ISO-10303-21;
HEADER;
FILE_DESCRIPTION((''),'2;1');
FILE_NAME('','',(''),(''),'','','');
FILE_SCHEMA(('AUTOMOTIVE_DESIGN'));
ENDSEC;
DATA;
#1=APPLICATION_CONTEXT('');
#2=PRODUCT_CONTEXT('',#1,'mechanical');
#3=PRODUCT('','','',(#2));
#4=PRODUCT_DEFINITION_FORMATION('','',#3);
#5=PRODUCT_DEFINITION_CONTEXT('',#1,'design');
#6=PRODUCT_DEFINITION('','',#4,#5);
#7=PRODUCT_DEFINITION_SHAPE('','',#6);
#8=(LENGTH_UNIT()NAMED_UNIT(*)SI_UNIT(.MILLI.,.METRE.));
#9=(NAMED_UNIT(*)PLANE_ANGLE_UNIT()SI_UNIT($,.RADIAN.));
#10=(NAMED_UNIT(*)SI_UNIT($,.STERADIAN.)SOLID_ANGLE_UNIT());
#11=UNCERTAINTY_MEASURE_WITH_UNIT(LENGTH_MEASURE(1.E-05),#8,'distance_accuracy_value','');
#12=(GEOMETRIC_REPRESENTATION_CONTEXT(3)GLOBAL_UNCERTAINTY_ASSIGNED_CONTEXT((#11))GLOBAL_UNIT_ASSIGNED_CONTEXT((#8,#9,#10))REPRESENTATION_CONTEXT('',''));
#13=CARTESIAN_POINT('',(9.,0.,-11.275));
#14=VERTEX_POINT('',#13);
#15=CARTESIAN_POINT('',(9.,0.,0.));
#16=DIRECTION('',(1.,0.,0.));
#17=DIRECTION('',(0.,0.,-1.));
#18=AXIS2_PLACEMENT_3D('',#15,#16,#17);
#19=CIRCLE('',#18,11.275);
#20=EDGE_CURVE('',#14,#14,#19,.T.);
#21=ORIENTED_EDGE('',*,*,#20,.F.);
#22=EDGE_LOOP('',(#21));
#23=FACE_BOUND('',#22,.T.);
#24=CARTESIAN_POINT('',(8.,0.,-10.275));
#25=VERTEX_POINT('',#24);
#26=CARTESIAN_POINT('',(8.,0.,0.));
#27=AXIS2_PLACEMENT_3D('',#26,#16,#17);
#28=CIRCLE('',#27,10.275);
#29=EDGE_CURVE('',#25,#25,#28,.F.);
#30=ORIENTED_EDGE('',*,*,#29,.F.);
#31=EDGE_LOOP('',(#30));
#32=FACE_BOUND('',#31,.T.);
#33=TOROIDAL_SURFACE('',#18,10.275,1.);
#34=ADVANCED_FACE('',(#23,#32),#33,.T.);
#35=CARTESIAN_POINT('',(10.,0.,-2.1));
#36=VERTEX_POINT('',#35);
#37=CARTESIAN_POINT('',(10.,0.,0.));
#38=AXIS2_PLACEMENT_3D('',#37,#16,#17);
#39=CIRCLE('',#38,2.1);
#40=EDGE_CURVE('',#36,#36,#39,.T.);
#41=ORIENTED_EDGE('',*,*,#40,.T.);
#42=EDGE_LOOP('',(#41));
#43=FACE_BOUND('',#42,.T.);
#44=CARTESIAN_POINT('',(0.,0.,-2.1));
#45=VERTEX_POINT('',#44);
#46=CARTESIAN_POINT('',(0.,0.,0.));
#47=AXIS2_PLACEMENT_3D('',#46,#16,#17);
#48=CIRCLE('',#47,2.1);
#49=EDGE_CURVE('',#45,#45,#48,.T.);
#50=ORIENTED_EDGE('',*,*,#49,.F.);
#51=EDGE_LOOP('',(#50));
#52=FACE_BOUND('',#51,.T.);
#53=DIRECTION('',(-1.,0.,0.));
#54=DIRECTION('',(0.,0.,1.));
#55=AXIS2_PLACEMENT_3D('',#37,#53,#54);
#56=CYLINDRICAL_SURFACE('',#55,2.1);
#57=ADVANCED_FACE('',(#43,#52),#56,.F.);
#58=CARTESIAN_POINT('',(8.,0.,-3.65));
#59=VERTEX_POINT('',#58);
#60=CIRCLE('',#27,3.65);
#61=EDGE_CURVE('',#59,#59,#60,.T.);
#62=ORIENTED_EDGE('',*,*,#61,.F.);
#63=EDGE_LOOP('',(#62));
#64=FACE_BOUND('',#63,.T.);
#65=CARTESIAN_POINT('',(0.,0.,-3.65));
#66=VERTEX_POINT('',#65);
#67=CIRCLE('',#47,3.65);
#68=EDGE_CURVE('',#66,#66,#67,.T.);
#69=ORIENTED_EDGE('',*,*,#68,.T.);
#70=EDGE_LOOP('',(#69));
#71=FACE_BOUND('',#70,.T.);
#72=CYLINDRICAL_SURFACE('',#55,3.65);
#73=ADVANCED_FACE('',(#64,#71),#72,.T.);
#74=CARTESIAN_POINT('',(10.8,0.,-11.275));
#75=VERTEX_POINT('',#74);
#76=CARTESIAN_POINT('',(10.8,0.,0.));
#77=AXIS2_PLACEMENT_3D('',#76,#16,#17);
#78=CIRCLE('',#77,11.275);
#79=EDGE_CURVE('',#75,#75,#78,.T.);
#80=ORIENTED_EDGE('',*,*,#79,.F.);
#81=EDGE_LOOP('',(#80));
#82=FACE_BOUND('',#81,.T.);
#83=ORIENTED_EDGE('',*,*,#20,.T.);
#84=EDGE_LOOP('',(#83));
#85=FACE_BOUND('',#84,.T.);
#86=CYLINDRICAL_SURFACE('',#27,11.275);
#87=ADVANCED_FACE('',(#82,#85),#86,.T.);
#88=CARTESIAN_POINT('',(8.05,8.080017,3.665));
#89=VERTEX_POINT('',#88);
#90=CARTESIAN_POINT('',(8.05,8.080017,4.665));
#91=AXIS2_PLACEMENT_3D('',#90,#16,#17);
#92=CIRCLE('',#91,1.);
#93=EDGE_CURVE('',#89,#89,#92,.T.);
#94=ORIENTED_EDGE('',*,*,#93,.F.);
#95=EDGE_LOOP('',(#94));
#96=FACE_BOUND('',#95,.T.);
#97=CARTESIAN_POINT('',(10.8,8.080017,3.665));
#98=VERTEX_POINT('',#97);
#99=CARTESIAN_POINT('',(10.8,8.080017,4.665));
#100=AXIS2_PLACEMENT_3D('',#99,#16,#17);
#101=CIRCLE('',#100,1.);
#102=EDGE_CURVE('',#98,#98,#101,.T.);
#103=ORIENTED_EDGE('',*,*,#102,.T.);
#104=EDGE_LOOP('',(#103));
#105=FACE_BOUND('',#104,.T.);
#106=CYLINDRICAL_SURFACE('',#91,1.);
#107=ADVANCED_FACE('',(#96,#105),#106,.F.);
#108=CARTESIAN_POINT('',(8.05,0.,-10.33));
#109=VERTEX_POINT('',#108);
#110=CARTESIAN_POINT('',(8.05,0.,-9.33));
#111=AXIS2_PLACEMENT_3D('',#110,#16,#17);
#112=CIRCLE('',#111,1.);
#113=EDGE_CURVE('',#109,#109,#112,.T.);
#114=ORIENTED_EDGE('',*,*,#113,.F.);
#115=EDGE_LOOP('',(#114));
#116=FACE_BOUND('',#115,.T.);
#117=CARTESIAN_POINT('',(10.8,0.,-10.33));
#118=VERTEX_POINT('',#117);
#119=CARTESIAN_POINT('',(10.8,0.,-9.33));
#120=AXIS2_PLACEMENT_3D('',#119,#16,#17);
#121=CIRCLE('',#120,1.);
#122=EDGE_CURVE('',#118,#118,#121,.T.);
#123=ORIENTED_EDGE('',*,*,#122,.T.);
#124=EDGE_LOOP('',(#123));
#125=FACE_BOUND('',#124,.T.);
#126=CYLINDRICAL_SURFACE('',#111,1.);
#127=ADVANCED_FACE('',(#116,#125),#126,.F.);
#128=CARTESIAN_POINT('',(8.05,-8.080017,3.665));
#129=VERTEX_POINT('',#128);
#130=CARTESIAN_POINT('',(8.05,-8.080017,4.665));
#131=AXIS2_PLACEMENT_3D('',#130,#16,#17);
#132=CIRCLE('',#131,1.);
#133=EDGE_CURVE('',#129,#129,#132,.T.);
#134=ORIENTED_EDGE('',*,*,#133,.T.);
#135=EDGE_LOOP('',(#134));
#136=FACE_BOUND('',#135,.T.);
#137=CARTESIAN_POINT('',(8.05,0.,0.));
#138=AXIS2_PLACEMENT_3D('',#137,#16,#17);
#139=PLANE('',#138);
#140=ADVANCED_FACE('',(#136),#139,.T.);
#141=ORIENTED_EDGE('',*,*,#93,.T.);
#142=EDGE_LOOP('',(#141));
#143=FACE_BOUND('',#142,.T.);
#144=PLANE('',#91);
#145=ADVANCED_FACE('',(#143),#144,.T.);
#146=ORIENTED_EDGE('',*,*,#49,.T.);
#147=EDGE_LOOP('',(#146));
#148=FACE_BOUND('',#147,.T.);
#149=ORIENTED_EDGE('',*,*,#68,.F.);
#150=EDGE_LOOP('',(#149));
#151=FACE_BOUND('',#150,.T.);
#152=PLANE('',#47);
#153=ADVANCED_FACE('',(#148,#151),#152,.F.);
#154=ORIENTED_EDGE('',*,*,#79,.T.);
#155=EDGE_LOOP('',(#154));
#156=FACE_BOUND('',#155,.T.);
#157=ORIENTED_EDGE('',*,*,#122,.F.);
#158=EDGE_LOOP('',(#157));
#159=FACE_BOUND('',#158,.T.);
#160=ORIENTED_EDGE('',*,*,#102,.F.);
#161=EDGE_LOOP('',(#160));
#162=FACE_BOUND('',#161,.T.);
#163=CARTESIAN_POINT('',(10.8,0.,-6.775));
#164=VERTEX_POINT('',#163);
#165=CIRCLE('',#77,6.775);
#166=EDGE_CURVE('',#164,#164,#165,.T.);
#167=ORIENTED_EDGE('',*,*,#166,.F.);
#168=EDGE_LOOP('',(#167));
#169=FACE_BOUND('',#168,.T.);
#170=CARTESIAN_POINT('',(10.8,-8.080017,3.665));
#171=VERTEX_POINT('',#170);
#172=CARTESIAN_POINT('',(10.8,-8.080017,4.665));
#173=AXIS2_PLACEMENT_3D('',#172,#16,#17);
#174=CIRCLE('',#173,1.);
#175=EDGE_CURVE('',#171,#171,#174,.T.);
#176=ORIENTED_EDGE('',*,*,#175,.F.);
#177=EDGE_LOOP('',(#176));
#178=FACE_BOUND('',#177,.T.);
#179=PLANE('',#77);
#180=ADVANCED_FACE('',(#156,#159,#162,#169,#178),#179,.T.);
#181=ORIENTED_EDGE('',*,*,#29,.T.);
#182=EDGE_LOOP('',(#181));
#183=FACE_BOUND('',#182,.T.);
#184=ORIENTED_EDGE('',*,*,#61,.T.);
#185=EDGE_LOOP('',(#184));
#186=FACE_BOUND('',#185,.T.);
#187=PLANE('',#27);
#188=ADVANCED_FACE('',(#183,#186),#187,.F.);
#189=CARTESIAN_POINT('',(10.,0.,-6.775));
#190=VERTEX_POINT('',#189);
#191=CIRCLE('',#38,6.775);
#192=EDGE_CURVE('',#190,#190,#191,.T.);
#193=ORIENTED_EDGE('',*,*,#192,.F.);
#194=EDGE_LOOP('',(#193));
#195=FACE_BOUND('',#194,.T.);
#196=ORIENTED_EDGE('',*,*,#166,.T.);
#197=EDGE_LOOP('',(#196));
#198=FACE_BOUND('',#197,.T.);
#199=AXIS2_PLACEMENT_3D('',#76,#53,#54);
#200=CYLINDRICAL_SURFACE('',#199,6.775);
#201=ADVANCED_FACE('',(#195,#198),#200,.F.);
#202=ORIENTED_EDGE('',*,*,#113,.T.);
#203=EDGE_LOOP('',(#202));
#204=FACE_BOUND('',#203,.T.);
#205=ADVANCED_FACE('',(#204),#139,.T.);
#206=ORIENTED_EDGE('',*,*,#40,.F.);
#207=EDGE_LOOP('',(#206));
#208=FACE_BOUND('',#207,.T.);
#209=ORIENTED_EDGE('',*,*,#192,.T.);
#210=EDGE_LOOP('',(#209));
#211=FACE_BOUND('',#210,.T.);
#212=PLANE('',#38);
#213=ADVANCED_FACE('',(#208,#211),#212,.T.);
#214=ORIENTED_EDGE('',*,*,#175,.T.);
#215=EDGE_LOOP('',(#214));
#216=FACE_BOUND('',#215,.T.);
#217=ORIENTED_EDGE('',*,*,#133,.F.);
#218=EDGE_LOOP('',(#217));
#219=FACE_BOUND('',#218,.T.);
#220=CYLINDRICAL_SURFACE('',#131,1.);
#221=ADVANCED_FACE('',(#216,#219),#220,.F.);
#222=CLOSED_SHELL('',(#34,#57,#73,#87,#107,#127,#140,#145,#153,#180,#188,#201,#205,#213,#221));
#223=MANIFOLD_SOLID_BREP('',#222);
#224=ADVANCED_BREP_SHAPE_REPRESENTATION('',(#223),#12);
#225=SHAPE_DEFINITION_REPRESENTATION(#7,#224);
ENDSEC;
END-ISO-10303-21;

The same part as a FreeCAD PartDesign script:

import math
import FreeCAD as App
import Part
import Sketcher
from FreeCAD import Vector
Q = App.Units.Quantity


def edges_at(feature, points):
    """Names of the edges that pass closest to the given points."""
    edges = feature.Shape.Edges
    near = lambda p: min(range(len(edges)), key=lambda i: edges[i].distToShape(Part.Vertex(*p))[0])
    return sorted({f"Edge{near(p) + 1}" for p in points})

doc = App.newDocument("Part")
body = doc.addObject("PartDesign::Body", "Body")

# Sketch on YZ plane
sketch1 = doc.addObject("Sketcher::SketchObject", "Sketch")
body.addObject(sketch1)
sketch1.AttachmentSupport = (doc.YZ_Plane, [""])
sketch1.MapMode = "FlatFace"
sketch1.addGeometry(Part.Circle(Vector(0, 0, 0), Vector(0, 0, 1), 3.6), False)
sketch1.addGeometry(Part.Circle(Vector(0, 0, 0), Vector(0, 0, 1), 2.1), False)
sketch1.addConstraint(Sketcher.Constraint("Coincident", 0, 3, -1, 1))
sketch1.addConstraint(Sketcher.Constraint("Coincident", 1, 3, -1, 1))
sketch1.addConstraint(Sketcher.Constraint("Diameter", 0, Q("7.3 mm")))
sketch1.addConstraint(Sketcher.Constraint("Diameter", 1, Q("4.2 mm")))
pad1 = doc.addObject("PartDesign::Pad", "Pad")
body.addObject(pad1)
pad1.Profile = sketch1
pad1.Length = 10

# Sketch on YZ plane
sketch2 = doc.addObject("Sketcher::SketchObject", "Sketch001")
body.addObject(sketch2)
sketch2.AttachmentSupport = (doc.YZ_Plane, [""])
sketch2.MapMode = "FlatFace"
sketch2.AttachmentOffset = App.Placement(Vector(0, 0, 8), App.Rotation())
sketch2.addGeometry(Part.Circle(Vector(0, 0, 0), Vector(0, 0, 1), 11.3), False)
sketch2.addGeometry(Part.Circle(Vector(0, 0, 0), Vector(0, 0, 1), 3.6), False)
sketch2.addConstraint(Sketcher.Constraint("Coincident", 0, 3, -1, 1))
sketch2.addConstraint(Sketcher.Constraint("Coincident", 1, 3, -1, 1))
sketch2.addConstraint(Sketcher.Constraint("Diameter", 1, Q("7.3 mm")))
sketch2.addConstraint(Sketcher.Constraint("Diameter", 0, Q("22.55 mm")))
pad2 = doc.addObject("PartDesign::Pad", "Pad001")
body.addObject(pad2)
pad2.Profile = sketch2
pad2.Length = 2

# Sketch on YZ plane
sketch3 = doc.addObject("Sketcher::SketchObject", "Sketch002")
body.addObject(sketch3)
sketch3.AttachmentSupport = (doc.YZ_Plane, [""])
sketch3.MapMode = "FlatFace"
sketch3.AttachmentOffset = App.Placement(Vector(0, 0, 10), App.Rotation())
sketch3.addGeometry(Part.Circle(Vector(0, 0, 0), Vector(0, 0, 1), 11), False)
sketch3.addGeometry(Part.Circle(Vector(0, 0, 0), Vector(0, 0, 1), 7), False)
sketch3.addConstraint(Sketcher.Constraint("Coincident", 0, 3, -1, 1))
sketch3.addConstraint(Sketcher.Constraint("Coincident", 1, 3, -1, 1))
sketch3.addConstraint(Sketcher.Constraint("Diameter", 0, Q("22.55 mm")))
sketch3.addConstraint(Sketcher.Constraint("Diameter", 1, Q("13.55 mm")))
pad3 = doc.addObject("PartDesign::Pad", "Pad002")
body.addObject(pad3)
pad3.Profile = sketch3
pad3.Length = 0.8

# Sketch on YZ plane
sketch4 = doc.addObject("Sketcher::SketchObject", "Sketch003")
body.addObject(sketch4)
sketch4.AttachmentSupport = (doc.YZ_Plane, [""])
sketch4.MapMode = "FlatFace"
sketch4.AttachmentOffset = App.Placement(Vector(0, 0, 10.8), App.Rotation())
sketch4.addGeometry(Part.ArcOfCircle(Part.Circle(Vector(-8.1, 4.7, 0), Vector(0, 0, 1), 1), math.radians(-90), math.radians(-60)), False)
sketch4.addGeometry(Part.ArcOfCircle(Part.Circle(Vector(-8.1, 4.7, 0), Vector(0, 0, 1), 1), math.radians(-60), math.radians(0)), False)
sketch4.addGeometry(Part.ArcOfCircle(Part.Circle(Vector(-8.1, 4.7, 0), Vector(0, 0, 1), 1), math.radians(0), math.radians(270)), False)
sketch4.addGeometry(Part.ArcOfCircle(Part.Circle(Vector(0, -9.3, 0), Vector(0, 0, 1), 1), math.radians(60), math.radians(120)), False)
sketch4.addGeometry(Part.ArcOfCircle(Part.Circle(Vector(0, -9.3, 0), Vector(0, 0, 1), 1), math.radians(120), math.radians(270)), False)
sketch4.addGeometry(Part.ArcOfCircle(Part.Circle(Vector(0, -9.3, 0), Vector(0, 0, 1), 1), math.radians(-90), math.radians(60)), False)
sketch4.addGeometry(Part.Circle(Vector(8.1, 4.7, 0), Vector(0, 0, 1), 1), False)
sketch4.addConstraint(Sketcher.Constraint("Tangent", 0, 2, 1, 1))
sketch4.addConstraint(Sketcher.Constraint("Tangent", 1, 2, 2, 1))
sketch4.addConstraint(Sketcher.Constraint("Tangent", 2, 2, 0, 1))
sketch4.addConstraint(Sketcher.Constraint("Tangent", 3, 2, 4, 1))
sketch4.addConstraint(Sketcher.Constraint("Tangent", 4, 2, 5, 1))
sketch4.addConstraint(Sketcher.Constraint("Tangent", 5, 2, 3, 1))
sketch4.addConstraint(Sketcher.Constraint("Equal", 2, 3))
sketch4.addConstraint(Sketcher.Constraint("Equal", 5, 6))
sketch4.addConstraint(Sketcher.Constraint("Symmetric", 0, 3, 6, 3, -2))
sketch4.addConstraint(Sketcher.Constraint("Symmetric", 3, 2, 5, 2, -2))
sketch4.addConstraint(Sketcher.Constraint("PointOnObject", 4, 2, -2))
sketch4.addConstraint(Sketcher.Constraint("Horizontal", 6, 3, 1, 2))
sketch4.addConstraint(Sketcher.Constraint("Vertical", 1, 3, 2, 2))
sketch4.addConstraint(Sketcher.Constraint("Diameter", 6, Q("2 mm")))
sketch4.addConstraint(Sketcher.Constraint("DistanceX", 3, 2, 5, 2, Q("1 mm")))
sketch4.addConstraint(Sketcher.Constraint("DistanceX", 2, 3, 0, 2, Q("0.5 mm")))
sketch4.addConstraint(Sketcher.Constraint("DistanceY", 3, 3, -1, 1, Q("9.33 mm")))
sketch4.addConstraint(Sketcher.Constraint("DistanceY", -1, 1, 0, 3, Q("4.665 mm")))
sketch4.addConstraint(Sketcher.Constraint("DistanceX", 0, 3, -1, 1, Q("8.080017 mm")))
pocket1 = doc.addObject("PartDesign::Pocket", "Pocket")
body.addObject(pocket1)
pocket1.Profile = sketch4
pocket1.Length = 2.75
doc.recompute()

fillet = doc.addObject("PartDesign::Fillet", "Fillet")
body.addObject(fillet)
fillet.Base = (pocket1, edges_at(pocket1, [(8, 0, 11.275)]))
fillet.Radius = 1

doc.recompute()
